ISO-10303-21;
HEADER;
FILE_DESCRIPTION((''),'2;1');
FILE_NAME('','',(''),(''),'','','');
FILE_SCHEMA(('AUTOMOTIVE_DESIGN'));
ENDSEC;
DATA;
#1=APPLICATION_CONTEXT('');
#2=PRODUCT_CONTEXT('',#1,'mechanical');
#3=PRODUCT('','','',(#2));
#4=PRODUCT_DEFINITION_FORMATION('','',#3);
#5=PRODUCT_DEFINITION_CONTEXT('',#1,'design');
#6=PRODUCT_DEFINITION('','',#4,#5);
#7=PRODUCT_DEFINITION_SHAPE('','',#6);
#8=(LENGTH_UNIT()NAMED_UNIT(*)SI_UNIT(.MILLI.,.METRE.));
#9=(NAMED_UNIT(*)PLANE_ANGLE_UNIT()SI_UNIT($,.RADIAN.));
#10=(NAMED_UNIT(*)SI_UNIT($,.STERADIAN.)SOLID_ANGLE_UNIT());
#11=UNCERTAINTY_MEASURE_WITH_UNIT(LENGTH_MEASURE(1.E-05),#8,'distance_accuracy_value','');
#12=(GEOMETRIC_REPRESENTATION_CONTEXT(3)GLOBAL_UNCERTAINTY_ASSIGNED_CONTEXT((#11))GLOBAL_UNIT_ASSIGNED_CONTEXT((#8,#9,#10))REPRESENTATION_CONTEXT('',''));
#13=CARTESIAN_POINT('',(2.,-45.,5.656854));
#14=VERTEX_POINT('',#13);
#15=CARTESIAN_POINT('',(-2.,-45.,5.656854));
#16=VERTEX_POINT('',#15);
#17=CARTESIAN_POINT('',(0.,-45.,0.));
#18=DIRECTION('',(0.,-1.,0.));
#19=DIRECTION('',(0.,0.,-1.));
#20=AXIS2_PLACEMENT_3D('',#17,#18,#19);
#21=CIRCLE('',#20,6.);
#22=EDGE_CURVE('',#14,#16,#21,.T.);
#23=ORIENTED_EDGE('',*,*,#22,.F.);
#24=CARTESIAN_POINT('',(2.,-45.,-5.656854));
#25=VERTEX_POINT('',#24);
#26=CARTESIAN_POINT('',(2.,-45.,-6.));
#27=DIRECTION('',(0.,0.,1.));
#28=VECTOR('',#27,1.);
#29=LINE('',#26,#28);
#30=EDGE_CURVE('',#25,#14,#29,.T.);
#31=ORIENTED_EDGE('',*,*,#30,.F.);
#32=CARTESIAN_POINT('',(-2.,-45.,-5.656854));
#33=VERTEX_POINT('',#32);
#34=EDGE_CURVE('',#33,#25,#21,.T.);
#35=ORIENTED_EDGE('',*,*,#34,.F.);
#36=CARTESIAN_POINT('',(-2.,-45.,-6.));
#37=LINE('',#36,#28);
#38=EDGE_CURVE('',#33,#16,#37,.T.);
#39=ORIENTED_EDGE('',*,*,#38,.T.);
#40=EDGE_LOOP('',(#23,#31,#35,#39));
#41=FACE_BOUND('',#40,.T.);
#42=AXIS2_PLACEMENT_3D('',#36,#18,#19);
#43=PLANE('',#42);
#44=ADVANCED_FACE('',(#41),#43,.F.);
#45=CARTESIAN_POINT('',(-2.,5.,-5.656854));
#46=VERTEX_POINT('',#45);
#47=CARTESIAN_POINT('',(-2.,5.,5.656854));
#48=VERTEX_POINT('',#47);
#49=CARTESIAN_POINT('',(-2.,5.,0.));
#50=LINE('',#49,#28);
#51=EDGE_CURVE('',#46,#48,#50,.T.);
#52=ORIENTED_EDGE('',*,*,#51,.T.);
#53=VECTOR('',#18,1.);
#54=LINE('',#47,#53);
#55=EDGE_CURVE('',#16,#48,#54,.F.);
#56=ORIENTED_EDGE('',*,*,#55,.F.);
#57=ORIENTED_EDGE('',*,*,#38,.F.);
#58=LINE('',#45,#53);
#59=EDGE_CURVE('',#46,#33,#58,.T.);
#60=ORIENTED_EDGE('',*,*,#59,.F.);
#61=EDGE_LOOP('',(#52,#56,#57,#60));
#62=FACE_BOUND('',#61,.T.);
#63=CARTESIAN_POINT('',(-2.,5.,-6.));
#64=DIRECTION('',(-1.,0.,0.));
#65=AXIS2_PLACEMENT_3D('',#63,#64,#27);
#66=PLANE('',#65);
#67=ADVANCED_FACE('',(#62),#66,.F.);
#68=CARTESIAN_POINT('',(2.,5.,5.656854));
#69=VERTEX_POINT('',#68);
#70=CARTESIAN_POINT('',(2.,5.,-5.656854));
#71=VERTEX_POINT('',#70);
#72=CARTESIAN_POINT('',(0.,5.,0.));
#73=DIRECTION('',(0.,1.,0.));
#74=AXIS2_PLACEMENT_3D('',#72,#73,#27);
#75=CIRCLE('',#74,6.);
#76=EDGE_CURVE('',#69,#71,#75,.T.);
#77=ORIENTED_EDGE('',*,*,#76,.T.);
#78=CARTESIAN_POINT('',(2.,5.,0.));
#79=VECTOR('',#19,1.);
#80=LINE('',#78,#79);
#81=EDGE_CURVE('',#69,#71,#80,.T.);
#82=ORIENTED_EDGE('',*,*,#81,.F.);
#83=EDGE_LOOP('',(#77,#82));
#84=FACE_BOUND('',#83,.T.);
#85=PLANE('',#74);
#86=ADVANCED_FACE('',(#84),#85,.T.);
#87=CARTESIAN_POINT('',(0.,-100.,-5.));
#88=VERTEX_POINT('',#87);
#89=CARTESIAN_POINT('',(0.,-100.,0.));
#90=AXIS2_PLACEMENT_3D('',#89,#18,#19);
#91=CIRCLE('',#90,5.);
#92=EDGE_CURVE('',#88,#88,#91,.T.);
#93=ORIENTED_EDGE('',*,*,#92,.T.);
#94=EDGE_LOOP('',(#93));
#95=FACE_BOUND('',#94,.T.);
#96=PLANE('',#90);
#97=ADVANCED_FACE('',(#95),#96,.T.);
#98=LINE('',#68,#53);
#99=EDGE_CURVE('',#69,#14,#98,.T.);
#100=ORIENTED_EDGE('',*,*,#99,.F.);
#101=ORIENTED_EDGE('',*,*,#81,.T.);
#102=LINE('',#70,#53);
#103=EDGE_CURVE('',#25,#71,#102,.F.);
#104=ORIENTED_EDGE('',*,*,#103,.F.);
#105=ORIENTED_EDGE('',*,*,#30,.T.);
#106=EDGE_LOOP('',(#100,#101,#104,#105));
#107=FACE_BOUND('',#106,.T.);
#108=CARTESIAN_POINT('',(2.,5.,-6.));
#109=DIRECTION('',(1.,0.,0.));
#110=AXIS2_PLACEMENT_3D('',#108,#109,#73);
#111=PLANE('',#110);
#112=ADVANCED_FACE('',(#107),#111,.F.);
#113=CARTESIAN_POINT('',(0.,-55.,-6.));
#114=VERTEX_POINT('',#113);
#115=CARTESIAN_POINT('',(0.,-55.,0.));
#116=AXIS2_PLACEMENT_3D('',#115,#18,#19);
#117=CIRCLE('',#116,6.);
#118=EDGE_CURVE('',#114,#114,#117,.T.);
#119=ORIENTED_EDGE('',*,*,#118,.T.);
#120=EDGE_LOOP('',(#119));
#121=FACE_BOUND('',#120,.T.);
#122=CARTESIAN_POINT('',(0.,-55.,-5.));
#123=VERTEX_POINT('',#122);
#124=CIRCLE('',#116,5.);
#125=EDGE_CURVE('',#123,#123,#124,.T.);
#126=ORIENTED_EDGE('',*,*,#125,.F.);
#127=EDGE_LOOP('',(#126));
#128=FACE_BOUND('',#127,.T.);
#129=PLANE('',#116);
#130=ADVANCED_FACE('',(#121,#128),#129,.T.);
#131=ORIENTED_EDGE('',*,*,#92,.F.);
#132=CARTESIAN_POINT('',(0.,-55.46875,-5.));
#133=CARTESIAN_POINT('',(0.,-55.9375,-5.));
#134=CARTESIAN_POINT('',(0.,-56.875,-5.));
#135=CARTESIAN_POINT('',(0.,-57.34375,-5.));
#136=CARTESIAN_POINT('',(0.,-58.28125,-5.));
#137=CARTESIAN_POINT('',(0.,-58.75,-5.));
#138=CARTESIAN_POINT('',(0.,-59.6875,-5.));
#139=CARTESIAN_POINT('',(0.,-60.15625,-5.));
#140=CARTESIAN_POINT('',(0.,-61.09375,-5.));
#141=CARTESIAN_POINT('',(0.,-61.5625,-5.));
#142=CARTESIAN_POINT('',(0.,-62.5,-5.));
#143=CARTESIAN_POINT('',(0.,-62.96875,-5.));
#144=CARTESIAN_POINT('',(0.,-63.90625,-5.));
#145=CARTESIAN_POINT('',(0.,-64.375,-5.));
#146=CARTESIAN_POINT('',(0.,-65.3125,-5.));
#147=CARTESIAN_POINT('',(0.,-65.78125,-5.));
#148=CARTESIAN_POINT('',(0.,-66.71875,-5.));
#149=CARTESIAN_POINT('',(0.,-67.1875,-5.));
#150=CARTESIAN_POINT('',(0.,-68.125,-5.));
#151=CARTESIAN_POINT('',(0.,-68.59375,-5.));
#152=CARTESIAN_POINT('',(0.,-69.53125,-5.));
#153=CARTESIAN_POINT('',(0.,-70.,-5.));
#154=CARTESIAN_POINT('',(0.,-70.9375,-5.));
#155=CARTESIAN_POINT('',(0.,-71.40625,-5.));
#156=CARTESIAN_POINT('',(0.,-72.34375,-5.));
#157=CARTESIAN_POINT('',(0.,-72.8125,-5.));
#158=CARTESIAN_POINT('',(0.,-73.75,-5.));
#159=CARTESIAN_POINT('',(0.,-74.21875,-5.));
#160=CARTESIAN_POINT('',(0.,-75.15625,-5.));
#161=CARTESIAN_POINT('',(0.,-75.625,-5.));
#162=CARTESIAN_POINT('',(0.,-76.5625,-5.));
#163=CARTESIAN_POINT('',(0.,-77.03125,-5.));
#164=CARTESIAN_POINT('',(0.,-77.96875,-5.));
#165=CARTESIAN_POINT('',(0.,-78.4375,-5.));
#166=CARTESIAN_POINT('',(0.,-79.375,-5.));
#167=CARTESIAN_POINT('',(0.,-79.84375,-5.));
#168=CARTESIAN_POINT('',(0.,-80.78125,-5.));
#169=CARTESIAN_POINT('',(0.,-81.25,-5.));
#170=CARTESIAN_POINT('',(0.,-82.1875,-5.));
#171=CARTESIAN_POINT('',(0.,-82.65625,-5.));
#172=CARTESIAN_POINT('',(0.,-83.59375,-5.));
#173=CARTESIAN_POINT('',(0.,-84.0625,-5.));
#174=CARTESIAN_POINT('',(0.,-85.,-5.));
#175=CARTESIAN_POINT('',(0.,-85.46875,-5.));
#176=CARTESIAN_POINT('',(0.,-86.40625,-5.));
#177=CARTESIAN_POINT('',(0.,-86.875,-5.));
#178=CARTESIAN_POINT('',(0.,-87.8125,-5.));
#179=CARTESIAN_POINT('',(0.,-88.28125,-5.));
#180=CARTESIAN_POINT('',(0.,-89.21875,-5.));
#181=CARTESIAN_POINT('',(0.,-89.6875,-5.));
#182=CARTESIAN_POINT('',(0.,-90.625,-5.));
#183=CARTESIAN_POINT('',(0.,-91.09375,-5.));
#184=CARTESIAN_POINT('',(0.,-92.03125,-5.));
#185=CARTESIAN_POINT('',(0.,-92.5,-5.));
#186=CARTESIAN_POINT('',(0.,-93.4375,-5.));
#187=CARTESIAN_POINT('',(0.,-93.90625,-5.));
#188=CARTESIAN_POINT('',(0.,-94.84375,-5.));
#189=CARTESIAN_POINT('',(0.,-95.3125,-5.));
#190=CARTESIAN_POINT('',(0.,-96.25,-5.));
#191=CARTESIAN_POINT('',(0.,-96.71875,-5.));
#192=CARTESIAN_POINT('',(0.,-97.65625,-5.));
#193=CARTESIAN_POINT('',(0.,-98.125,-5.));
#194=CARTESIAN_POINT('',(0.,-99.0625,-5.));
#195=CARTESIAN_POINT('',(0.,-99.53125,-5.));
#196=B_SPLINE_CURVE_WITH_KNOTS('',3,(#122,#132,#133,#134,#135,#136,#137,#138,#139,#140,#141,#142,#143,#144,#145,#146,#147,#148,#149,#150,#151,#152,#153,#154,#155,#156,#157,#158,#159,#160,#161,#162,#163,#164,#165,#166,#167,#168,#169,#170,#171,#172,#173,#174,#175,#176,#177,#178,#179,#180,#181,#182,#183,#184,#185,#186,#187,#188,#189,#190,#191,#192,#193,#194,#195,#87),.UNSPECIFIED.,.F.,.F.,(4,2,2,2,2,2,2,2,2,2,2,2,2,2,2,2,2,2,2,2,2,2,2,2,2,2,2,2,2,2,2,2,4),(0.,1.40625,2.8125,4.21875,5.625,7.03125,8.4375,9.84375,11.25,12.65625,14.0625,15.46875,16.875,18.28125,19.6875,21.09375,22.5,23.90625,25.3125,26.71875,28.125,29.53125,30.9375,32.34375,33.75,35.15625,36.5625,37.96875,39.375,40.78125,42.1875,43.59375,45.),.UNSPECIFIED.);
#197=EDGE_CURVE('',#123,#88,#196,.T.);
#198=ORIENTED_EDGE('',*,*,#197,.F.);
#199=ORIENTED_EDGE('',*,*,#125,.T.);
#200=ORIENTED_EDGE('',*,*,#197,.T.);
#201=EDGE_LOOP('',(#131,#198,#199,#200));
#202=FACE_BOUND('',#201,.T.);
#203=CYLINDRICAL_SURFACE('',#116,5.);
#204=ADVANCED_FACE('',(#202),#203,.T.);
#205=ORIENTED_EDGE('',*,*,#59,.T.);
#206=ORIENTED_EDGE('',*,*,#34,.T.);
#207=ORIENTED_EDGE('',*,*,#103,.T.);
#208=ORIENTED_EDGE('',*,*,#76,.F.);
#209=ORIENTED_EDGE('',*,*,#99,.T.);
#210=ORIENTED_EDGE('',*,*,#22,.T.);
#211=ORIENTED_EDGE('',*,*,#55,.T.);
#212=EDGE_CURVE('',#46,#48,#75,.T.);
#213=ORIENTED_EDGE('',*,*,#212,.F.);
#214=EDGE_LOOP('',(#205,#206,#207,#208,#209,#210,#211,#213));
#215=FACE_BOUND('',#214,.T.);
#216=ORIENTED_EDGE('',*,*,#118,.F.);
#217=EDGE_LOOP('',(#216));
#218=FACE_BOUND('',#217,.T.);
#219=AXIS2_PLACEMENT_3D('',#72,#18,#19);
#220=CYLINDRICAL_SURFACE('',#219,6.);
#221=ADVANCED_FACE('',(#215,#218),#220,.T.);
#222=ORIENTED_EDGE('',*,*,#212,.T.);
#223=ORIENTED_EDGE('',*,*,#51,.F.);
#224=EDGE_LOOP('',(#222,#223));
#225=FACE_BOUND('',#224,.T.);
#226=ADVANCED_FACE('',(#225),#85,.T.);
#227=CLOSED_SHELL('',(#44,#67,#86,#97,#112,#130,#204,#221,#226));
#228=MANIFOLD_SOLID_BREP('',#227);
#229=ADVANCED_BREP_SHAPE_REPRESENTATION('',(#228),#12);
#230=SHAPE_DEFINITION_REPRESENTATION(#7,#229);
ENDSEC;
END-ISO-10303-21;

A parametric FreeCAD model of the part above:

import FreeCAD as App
import Part
import Sketcher

V = App.Vector
Q = App.Units.Quantity


def add_polygon(sketch, points):
    """Adds a closed chain of lines whose ends are joined by coincident constraints."""
    first, n = sketch.GeometryCount, len(points)
    for a, b in zip(points, points[1:] + points[:1]):
        sketch.addGeometry(Part.LineSegment(App.Vector(*a, 0), App.Vector(*b, 0)), False)
    for i in range(n):
        sketch.addConstraint(Sketcher.Constraint("Coincident", first + i, 2, first + (i + 1) % n, 1))

doc = App.newDocument("Part")
params = doc.addObject("Spreadsheet::Sheet", "Params")
for row, (alias, value) in enumerate([
    ("sketch1_diameter", "12 mm"),
    ("pad1_length", "5 mm"),
    ("sketch2_diameter", "12 mm"),
    ("pad2_length", "100 mm"),
    ("sketch3_width", "4 mm"),
    ("sketch3_height", "50 mm"),
    ("sketch4_diameter", "12 mm"),
    ("sketch4_diameter2", "10 mm"),
    ("pocket2_length", "45 mm"),
], start=1):
    params.set(f"A{row}", alias)
    params.set(f"B{row}", "=" + value)
    params.setAlias(f"B{row}", alias)

body = doc.addObject("PartDesign::Body", "Body")

sketch1 = body.newObject("Sketcher::SketchObject", "Sketch")
sketch1.AttachmentSupport = (doc.getObject("XZ_Plane"), [""])
sketch1.MapMode = "FlatFace"
sketch1.addGeometry(Part.Circle(V(0, 0, 0), V(0, 0, 1), 6), False)
sketch1.addConstraint([
    Sketcher.Constraint("Coincident", 0, 3, -1, 1),
    Sketcher.Constraint("Diameter", 0, Q("12 mm")),
])
sketch1.setExpression("Constraints[1]", "Params.sketch1_diameter")
pad1 = body.newObject("PartDesign::Pad", "Pad")
pad1.Profile = sketch1
pad1.setExpression("Length", "Params.pad1_length")
pad1.Reversed = True

sketch2 = body.newObject("Sketcher::SketchObject", "Sketch001")
sketch2.AttachmentSupport = (doc.getObject("XZ_Plane"), [""])
sketch2.MapMode = "FlatFace"
sketch2.AttachmentOffset = App.Placement(V(0, 0, 100), App.Rotation())
sketch2.addGeometry(Part.Circle(V(0, 0, 0), V(0, 0, 1), 6), False)
sketch2.addConstraint([
    Sketcher.Constraint("Coincident", 0, 3, -1, 1),
    Sketcher.Constraint("Diameter", 0, Q("12 mm")),
])
sketch2.setExpression("Constraints[1]", "Params.sketch2_diameter")
pad2 = body.newObject("PartDesign::Pad", "Pad001")
pad2.Profile = sketch2
pad2.setExpression("Length", "Params.pad2_length")
pad2.Reversed = True

sketch3 = body.newObject("Sketcher::SketchObject", "Sketch002")
sketch3.AttachmentSupport = (doc.getObject("XY_Plane"), [""])
sketch3.MapMode = "FlatFace"
add_polygon(sketch3, [(-2, 5), (-2, -45), (2, -45), (2, 5)])
sketch3.addConstraint([
    Sketcher.Constraint("Vertical", 0),
    Sketcher.Constraint("Horizontal", 1),
    Sketcher.Constraint("Vertical", 2),
    Sketcher.Constraint("Horizontal", 3),
    Sketcher.Constraint("DistanceX", 1, 1, 1, 2, Q("4 mm")),
    Sketcher.Constraint("DistanceY", 0, 2, 0, 1, Q("50 mm")),
    Sketcher.Constraint("DistanceX", 0, 2, -1, 1, Q("2 mm")),
    Sketcher.Constraint("DistanceY", 0, 2, -1, 1, Q("45 mm")),
])
sketch3.setExpression("Constraints[8]", "Params.sketch3_width")
sketch3.setExpression("Constraints[9]", "Params.sketch3_height")
pocket1 = body.newObject("PartDesign::Pocket", "Pocket")
pocket1.Profile = sketch3
pocket1.Type = "ThroughAll"
pocket1.Midplane = True

sketch4 = body.newObject("Sketcher::SketchObject", "Sketch003")
sketch4.AttachmentSupport = (doc.getObject("XZ_Plane"), [""])
sketch4.MapMode = "FlatFace"
sketch4.AttachmentOffset = App.Placement(V(0, 0, 100), App.Rotation())
sketch4.addGeometry([
    Part.Circle(V(0, 0, 0), V(0, 0, 1), 6),
    Part.Circle(V(0, 0, 0), V(0, 0, 1), 5),
], False)
sketch4.addConstraint([
    Sketcher.Constraint("Coincident", 0, 3, -1, 1),
    Sketcher.Constraint("Coincident", 1, 3, -1, 1),
    Sketcher.Constraint("Diameter", 0, Q("12 mm")),
    Sketcher.Constraint("Diameter", 1, Q("10 mm")),
])
sketch4.setExpression("Constraints[2]", "Params.sketch4_diameter")
sketch4.setExpression("Constraints[3]", "Params.sketch4_diameter2")
pocket2 = body.newObject("PartDesign::Pocket", "Pocket001")
pocket2.Profile = sketch4
pocket2.setExpression("Length", "Params.pocket2_length")

doc.recompute()
